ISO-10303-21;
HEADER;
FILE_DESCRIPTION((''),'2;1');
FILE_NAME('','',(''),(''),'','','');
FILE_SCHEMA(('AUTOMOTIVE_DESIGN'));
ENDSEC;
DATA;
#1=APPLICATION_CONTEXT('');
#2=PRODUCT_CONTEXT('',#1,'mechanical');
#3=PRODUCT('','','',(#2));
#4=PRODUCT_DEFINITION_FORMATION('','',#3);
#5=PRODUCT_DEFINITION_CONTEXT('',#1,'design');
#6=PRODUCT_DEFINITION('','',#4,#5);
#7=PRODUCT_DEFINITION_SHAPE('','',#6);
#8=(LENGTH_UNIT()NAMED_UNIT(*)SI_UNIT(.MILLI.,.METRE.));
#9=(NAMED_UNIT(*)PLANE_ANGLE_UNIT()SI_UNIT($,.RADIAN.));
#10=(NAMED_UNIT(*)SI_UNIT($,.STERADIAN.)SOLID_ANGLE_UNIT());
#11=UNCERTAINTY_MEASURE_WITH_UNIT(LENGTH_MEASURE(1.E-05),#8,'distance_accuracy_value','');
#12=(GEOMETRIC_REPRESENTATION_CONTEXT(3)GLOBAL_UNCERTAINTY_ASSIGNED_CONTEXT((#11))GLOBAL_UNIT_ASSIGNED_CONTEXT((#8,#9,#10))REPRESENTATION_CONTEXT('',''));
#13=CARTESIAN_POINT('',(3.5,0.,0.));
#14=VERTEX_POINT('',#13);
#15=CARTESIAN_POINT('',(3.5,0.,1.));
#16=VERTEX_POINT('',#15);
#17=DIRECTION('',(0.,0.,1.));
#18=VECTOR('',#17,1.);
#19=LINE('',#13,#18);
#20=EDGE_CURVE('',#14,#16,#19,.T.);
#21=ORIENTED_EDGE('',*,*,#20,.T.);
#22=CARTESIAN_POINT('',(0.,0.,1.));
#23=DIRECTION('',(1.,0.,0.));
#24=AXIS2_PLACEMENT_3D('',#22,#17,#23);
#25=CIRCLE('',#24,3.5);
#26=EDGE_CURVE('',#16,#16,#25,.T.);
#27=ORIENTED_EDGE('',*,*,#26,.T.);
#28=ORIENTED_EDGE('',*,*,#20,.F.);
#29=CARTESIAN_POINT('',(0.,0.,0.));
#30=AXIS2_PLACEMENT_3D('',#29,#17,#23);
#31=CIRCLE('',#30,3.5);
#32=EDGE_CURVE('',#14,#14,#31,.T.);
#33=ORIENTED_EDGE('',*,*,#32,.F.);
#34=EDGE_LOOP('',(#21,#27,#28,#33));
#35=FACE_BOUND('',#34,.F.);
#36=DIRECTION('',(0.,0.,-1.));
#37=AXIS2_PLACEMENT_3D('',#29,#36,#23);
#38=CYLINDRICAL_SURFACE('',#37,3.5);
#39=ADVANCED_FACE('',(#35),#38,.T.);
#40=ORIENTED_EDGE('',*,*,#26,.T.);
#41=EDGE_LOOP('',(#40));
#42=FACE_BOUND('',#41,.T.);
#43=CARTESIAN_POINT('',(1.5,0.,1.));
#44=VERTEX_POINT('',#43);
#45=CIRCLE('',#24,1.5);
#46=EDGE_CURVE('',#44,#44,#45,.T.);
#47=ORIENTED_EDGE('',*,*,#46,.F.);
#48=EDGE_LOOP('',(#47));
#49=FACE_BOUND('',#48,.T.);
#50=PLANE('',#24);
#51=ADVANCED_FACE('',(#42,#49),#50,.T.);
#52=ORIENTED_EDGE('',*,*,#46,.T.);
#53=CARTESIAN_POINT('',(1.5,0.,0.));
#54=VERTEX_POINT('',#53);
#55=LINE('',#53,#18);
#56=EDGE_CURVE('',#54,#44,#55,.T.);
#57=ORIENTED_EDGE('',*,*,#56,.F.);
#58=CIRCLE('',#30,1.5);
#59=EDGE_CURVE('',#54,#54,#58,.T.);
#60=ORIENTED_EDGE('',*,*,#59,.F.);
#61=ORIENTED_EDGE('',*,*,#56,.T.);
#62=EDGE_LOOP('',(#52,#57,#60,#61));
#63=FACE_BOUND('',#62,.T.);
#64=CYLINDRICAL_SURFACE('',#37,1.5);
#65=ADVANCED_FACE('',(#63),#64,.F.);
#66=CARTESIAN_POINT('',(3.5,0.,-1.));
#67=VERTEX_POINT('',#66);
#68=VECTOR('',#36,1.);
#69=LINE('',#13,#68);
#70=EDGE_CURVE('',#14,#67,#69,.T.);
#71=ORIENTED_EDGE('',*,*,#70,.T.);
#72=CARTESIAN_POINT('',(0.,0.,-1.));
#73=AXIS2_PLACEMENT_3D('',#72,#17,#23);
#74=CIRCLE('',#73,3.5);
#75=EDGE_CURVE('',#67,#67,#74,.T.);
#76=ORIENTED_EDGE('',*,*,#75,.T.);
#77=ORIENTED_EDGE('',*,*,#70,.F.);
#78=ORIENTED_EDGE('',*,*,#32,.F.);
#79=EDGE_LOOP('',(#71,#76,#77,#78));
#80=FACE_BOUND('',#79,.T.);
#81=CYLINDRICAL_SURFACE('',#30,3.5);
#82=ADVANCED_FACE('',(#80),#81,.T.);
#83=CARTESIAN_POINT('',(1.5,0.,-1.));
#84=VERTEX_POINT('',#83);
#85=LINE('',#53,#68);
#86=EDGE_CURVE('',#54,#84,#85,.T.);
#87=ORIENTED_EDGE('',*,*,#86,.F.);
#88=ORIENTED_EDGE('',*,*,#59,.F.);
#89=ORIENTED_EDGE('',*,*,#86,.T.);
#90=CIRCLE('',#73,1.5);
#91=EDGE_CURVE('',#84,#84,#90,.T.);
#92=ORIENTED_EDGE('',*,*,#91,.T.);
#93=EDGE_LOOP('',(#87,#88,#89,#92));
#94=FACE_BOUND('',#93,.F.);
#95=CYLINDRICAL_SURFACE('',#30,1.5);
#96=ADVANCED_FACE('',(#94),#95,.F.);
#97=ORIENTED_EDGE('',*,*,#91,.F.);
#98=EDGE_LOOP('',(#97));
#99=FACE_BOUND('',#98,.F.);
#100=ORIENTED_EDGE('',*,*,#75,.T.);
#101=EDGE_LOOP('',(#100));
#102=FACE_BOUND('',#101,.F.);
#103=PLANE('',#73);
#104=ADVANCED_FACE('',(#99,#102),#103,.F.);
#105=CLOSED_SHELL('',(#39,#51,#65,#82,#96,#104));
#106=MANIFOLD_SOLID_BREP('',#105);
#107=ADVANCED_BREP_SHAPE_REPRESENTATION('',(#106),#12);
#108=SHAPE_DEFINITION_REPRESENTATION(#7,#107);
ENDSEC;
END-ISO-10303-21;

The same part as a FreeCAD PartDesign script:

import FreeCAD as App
import Part
import Sketcher

V = App.Vector

doc = App.newDocument("Part")
body = doc.addObject("PartDesign::Body", "Body")

sketch1 = body.newObject("Sketcher::SketchObject", "Sketch")
sketch1.AttachmentSupport = (doc.getObject("XY_Plane"), [""])
sketch1.MapMode = "FlatFace"
sketch1.addGeometry([
    Part.Circle(V(0, 0, 0), V(0, 0, 1), 3.5),
    Part.Circle(V(0, 0, 0), V(0, 0, 1), 1.5),
], False)
sketch1.addConstraint([
    Sketcher.Constraint("Coincident", 0, 3, -1, 1),
    Sketcher.Constraint("Coincident", 1, 3, -1, 1),
    Sketcher.Constraint("Diameter", 0, 7.0),
    Sketcher.Constraint("Diameter", 1, 3.0),
])
pad1 = body.newObject("PartDesign::Pad", "Pad")
pad1.Profile = sketch1
pad1.Length = 2
pad1.Midplane = True

doc.recompute()
